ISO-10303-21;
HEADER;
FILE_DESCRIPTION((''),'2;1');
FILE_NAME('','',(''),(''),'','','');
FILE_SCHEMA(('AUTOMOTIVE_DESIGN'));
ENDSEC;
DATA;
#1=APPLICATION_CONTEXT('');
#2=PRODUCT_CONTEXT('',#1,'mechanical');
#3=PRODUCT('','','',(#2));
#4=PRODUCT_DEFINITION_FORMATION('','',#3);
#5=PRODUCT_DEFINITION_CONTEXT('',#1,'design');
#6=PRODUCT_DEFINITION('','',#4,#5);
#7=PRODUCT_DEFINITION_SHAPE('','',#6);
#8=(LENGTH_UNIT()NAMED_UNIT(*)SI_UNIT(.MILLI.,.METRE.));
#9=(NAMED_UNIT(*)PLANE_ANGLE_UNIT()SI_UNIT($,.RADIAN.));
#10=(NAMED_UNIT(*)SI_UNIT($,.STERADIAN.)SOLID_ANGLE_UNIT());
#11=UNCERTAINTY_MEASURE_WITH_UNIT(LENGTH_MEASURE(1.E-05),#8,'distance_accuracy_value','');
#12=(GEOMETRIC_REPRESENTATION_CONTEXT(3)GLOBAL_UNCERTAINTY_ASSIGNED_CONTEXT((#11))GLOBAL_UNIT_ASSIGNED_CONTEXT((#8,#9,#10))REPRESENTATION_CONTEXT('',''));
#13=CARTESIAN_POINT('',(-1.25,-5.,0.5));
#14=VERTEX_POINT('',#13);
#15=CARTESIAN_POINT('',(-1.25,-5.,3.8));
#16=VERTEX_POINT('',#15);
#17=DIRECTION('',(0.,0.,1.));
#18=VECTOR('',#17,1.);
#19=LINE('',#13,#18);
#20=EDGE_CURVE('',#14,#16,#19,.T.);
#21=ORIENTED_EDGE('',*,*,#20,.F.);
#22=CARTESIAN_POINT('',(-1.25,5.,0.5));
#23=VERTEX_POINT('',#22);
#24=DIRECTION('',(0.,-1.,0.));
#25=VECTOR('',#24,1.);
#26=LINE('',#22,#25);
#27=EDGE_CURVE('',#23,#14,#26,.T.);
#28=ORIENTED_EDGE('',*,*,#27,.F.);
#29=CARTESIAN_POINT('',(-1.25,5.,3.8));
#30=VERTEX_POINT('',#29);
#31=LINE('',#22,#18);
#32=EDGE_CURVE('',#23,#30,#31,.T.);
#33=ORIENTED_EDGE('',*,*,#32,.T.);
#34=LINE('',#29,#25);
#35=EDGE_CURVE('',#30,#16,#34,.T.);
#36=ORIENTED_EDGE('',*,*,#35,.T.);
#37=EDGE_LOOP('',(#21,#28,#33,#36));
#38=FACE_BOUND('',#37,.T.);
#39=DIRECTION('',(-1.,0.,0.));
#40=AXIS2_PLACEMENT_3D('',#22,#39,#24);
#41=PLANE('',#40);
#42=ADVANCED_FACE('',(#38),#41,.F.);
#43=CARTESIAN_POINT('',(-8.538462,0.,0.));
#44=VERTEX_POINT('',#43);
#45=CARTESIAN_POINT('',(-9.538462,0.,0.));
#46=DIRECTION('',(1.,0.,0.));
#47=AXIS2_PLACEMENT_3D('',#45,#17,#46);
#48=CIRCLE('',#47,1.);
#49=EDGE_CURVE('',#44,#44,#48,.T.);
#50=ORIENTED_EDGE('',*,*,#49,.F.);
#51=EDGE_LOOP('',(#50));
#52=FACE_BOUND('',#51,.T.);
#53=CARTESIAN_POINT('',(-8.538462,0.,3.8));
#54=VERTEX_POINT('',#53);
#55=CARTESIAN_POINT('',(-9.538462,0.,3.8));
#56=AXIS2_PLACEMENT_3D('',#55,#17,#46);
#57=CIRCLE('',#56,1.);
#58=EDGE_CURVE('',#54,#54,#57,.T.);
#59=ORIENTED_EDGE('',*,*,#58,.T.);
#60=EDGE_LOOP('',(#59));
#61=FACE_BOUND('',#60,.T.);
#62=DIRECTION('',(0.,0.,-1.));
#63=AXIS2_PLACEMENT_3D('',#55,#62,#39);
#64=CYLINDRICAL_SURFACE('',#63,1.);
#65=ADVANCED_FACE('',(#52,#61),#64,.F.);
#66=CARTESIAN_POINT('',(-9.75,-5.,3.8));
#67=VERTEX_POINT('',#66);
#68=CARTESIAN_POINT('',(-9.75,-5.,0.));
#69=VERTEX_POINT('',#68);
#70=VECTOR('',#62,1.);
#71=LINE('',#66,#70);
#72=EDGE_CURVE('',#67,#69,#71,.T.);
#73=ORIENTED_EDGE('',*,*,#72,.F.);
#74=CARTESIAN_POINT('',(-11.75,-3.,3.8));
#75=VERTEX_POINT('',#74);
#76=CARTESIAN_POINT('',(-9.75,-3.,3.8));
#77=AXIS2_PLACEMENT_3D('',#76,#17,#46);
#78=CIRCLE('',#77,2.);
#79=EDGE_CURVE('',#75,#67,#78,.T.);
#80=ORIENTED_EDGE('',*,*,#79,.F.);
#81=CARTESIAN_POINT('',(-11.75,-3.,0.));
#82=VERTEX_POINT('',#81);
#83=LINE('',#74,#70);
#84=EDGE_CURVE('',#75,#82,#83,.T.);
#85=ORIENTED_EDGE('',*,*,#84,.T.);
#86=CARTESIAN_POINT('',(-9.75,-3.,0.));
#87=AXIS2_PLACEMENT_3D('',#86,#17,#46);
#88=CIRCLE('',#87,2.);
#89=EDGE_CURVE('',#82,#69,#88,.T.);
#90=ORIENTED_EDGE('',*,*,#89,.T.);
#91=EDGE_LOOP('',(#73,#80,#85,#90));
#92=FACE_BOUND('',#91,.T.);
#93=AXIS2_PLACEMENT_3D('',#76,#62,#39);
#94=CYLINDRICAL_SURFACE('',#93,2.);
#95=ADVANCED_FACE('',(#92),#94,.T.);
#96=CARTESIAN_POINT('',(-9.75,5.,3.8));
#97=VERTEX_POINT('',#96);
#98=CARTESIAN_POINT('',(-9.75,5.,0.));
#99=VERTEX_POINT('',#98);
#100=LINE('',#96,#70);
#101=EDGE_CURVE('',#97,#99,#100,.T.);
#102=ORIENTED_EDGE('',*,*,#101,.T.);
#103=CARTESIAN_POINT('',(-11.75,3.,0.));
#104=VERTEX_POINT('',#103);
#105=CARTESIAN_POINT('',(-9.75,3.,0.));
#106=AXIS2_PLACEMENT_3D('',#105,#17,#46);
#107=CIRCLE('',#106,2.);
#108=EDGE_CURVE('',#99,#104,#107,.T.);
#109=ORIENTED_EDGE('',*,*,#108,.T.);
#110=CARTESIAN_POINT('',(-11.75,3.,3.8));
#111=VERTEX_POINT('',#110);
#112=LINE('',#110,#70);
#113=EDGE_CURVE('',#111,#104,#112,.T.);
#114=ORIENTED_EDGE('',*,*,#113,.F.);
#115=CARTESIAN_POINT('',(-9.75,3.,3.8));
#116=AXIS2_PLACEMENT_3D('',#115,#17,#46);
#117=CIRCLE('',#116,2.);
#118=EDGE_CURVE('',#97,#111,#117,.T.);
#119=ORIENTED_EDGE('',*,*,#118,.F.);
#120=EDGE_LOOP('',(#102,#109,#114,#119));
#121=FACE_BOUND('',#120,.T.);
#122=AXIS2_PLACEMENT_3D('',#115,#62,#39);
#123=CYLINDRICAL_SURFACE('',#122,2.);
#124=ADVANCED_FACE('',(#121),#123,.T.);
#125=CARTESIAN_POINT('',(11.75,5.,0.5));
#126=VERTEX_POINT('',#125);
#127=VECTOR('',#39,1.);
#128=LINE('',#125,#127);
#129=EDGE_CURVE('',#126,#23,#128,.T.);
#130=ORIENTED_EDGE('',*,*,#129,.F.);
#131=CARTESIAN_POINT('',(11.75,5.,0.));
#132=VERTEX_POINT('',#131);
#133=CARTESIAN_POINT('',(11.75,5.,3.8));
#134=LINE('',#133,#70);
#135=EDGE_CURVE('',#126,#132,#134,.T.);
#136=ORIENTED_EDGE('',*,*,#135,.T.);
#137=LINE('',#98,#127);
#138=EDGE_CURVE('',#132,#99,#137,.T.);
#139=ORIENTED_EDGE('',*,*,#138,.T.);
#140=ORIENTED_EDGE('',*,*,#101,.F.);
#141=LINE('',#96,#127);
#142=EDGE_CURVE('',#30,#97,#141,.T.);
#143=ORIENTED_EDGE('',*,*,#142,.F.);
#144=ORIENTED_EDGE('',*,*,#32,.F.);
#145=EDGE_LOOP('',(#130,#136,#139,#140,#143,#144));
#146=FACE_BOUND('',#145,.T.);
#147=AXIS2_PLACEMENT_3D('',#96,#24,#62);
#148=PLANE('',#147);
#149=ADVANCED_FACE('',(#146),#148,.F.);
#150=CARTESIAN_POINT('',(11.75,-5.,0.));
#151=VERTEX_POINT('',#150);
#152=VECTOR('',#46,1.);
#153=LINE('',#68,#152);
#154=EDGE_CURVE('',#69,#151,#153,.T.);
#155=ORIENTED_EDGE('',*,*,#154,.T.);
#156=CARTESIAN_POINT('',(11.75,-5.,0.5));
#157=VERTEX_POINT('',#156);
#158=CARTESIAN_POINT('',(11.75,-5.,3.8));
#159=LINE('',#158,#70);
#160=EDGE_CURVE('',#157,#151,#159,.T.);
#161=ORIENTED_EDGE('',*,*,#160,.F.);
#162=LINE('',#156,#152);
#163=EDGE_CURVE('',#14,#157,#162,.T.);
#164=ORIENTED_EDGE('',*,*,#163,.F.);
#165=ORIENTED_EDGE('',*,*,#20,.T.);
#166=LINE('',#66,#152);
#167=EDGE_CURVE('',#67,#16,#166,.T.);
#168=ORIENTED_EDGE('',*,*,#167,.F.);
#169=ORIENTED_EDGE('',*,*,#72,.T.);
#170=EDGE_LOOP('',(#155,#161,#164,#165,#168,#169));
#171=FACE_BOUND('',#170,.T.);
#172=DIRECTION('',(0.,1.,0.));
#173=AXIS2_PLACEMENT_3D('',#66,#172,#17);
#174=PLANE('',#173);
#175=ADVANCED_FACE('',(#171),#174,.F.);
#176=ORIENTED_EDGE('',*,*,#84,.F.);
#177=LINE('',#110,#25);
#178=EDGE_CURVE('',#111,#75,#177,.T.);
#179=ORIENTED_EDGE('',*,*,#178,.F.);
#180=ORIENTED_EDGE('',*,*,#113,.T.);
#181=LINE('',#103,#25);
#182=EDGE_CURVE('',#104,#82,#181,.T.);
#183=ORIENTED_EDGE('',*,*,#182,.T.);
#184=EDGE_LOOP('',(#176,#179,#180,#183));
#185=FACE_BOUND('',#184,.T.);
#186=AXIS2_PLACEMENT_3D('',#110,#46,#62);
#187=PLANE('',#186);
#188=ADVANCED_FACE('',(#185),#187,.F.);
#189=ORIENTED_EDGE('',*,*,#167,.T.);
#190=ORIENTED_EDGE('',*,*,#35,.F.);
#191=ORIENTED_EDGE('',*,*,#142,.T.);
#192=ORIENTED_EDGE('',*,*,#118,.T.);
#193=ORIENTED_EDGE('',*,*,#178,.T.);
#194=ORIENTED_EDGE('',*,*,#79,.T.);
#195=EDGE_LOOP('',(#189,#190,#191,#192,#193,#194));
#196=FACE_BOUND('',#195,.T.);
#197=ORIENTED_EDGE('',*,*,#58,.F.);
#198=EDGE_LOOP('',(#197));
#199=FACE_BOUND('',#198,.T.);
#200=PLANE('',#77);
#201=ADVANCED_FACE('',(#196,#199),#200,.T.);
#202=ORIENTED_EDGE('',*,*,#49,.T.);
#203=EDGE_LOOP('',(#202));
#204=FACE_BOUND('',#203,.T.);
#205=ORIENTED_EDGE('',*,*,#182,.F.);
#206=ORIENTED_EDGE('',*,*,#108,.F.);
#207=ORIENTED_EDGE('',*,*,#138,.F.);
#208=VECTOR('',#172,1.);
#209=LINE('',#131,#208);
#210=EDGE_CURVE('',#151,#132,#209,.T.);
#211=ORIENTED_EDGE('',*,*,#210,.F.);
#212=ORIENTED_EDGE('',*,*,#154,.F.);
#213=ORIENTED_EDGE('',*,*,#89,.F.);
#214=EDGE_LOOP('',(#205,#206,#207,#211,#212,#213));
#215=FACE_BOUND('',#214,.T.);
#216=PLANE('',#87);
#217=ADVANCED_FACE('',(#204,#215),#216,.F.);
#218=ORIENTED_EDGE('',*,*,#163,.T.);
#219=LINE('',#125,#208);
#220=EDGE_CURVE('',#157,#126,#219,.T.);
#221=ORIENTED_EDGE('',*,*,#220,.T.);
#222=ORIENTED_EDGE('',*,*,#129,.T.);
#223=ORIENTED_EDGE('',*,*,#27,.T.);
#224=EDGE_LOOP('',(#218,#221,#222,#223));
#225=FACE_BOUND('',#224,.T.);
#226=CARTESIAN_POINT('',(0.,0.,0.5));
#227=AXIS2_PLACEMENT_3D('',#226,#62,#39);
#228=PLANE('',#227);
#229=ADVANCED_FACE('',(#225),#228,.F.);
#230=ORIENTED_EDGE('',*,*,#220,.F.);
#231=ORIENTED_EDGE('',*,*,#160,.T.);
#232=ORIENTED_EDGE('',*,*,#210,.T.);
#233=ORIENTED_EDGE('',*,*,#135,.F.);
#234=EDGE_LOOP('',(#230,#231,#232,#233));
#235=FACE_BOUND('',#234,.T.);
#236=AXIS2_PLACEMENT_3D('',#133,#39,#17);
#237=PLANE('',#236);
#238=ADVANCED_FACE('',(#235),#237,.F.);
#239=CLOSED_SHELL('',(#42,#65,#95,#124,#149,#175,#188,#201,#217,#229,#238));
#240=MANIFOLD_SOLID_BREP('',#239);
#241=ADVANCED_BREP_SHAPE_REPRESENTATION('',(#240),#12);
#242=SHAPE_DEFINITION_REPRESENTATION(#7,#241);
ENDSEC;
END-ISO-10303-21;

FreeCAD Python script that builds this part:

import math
import FreeCAD as App
import Part
import Sketcher
from FreeCAD import Vector
Q = App.Units.Quantity


def add_polygon(sketch, points):
    """Adds a closed chain of lines whose ends are joined by coincident constraints."""
    first, n = sketch.GeometryCount, len(points)
    for a, b in zip(points, points[1:] + points[:1]):
        sketch.addGeometry(Part.LineSegment(App.Vector(*a, 0), App.Vector(*b, 0)), False)
    for i in range(n):
        sketch.addConstraint(Sketcher.Constraint("Coincident", first + i, 2, first + (i + 1) % n, 1))

doc = App.newDocument("Part")
body = doc.addObject("PartDesign::Body", "Body")

sketch1 = body.newObject("Sketcher::SketchObject", "Sketch")
sketch1.AttachmentSupport = (doc.getObject("XY_Plane"), [""])
sketch1.MapMode = "FlatFace"
sketch1.addGeometry(Part.LineSegment(Vector(11.75, 5, 0), Vector(-9.75, 5, 0)), False)
sketch1.addGeometry(Part.ArcOfCircle(Part.Circle(Vector(-9.75, 3, 0), Vector(0, 0, 1), 2), math.radians(90), math.radians(180)), False)
sketch1.addGeometry(Part.LineSegment(Vector(-11.75, 3, 0), Vector(-11.75, -3, 0)), False)
sketch1.addGeometry(Part.ArcOfCircle(Part.Circle(Vector(-9.75, -3, 0), Vector(0, 0, 1), 2), math.radians(-180), math.radians(-90)), False)
sketch1.addGeometry(Part.LineSegment(Vector(-9.75, -5, 0), Vector(11.75, -5, 0)), False)
sketch1.addGeometry(Part.LineSegment(Vector(11.75, -5, 0), Vector(11.75, 5, 0)), False)
sketch1.addGeometry(Part.Circle(Vector(-9.538462, 0, 0), Vector(0, 0, 1), 1), False)
sketch1.addConstraint(Sketcher.Constraint("Tangent", 0, 2, 1, 1))
sketch1.addConstraint(Sketcher.Constraint("Tangent", 1, 2, 2, 1))
sketch1.addConstraint(Sketcher.Constraint("Tangent", 2, 2, 3, 1))
sketch1.addConstraint(Sketcher.Constraint("Tangent", 3, 2, 4, 1))
sketch1.addConstraint(Sketcher.Constraint("Coincident", 4, 2, 5, 1))
sketch1.addConstraint(Sketcher.Constraint("Coincident", 5, 2, 0, 1))
sketch1.addConstraint(Sketcher.Constraint("Horizontal", 0))
sketch1.addConstraint(Sketcher.Constraint("Vertical", 2))
sketch1.addConstraint(Sketcher.Constraint("Horizontal", 4))
sketch1.addConstraint(Sketcher.Constraint("Vertical", 5))
sketch1.addConstraint(Sketcher.Constraint("Equal", 1, 3))
sketch1.addConstraint(Sketcher.Constraint("PointOnObject", 6, 3, -1))
sketch1.addConstraint(Sketcher.Constraint("Diameter", 6, Q("2 mm")))
sketch1.addConstraint(Sketcher.Constraint("Radius", 1, Q("2 mm")))
sketch1.addConstraint(Sketcher.Constraint("DistanceY", 2, 2, 2, 1, Q("6 mm")))
sketch1.addConstraint(Sketcher.Constraint("DistanceX", 0, 2, 0, 1, Q("21.5 mm")))
sketch1.addConstraint(Sketcher.Constraint("DistanceY", -1, 1, 1, 3, Q("3 mm")))
sketch1.addConstraint(Sketcher.Constraint("DistanceX", 1, 3, -1, 1, Q("9.75 mm")))
sketch1.addConstraint(Sketcher.Constraint("DistanceX", 6, 3, -1, 1, Q("9.538462 mm")))
pad1 = body.newObject("PartDesign::Pad", "Pad")
pad1.Profile = sketch1
pad1.Length = 3.8

sketch2 = body.newObject("Sketcher::SketchObject", "Sketch001")
sketch2.AttachmentSupport = (doc.getObject("XY_Plane"), [""])
sketch2.MapMode = "FlatFace"
sketch2.AttachmentOffset = App.Placement(Vector(0, 0, 3.8), App.Rotation())
add_polygon(sketch2, [(-1.25, 5), (-1.25, -5), (11.75, -5), (11.75, 5)])
sketch2.addConstraint(Sketcher.Constraint("Vertical", 0))
sketch2.addConstraint(Sketcher.Constraint("Horizontal", 1))
sketch2.addConstraint(Sketcher.Constraint("Vertical", 2))
sketch2.addConstraint(Sketcher.Constraint("Horizontal", 3))
sketch2.addConstraint(Sketcher.Constraint("DistanceX", 1, 1, 1, 2, Q("13 mm")))
sketch2.addConstraint(Sketcher.Constraint("DistanceY", 0, 2, 0, 1, Q("10 mm")))
sketch2.addConstraint(Sketcher.Constraint("DistanceY", 0, 2, -1, 1, Q("5 mm")))
sketch2.addConstraint(Sketcher.Constraint("DistanceX", 0, 2, -1, 1, Q("1.25 mm")))
pocket1 = body.newObject("PartDesign::Pocket", "Pocket")
pocket1.Profile = sketch2
pocket1.Length = 3.3

doc.recompute()
